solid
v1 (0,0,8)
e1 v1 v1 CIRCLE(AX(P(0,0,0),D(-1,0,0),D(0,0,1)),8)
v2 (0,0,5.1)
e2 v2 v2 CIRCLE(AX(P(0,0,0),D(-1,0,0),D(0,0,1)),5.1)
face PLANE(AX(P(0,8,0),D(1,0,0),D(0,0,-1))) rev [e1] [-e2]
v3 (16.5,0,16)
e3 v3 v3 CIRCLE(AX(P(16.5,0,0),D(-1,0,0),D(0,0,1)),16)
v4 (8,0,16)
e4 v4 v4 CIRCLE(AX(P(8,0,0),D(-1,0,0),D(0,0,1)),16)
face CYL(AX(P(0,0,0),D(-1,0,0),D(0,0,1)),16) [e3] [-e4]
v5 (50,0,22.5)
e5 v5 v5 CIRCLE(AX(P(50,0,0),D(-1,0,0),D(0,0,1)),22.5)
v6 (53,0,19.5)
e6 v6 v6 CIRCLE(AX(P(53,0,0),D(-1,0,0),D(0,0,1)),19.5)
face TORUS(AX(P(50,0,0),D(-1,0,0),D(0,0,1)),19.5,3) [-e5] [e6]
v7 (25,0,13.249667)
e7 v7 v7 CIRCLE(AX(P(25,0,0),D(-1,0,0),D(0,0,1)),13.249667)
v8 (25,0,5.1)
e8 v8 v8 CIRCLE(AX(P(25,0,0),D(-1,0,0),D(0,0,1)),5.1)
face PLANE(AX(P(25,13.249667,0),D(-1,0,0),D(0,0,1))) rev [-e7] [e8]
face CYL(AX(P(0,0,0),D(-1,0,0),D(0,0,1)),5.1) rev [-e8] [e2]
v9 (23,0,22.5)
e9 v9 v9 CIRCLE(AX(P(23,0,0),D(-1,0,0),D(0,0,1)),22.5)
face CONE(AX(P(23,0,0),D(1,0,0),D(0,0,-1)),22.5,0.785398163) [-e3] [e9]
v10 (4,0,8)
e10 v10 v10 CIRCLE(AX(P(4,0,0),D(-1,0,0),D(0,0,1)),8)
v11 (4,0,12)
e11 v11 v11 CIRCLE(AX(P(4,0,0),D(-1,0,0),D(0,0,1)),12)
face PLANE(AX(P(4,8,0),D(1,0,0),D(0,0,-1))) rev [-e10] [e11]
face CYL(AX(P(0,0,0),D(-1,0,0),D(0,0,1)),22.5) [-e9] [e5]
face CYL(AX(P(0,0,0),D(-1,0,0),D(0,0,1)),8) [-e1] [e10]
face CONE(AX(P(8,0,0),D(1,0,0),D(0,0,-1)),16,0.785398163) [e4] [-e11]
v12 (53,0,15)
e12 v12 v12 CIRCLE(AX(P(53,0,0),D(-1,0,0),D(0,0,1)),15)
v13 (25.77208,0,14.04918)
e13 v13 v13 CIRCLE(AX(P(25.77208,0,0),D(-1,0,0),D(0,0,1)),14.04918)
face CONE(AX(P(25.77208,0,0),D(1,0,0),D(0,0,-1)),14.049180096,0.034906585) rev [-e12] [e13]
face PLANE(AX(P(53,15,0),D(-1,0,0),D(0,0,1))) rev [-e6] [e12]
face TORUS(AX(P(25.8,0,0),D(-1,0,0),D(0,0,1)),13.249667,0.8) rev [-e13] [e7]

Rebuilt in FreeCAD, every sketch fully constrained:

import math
import FreeCAD as App
import Part
import Sketcher

V = App.Vector
Q = App.Units.Quantity

doc = App.newDocument("Part")
body = doc.addObject("PartDesign::Body", "Body")

# Sketch on XY plane
sketch1 = doc.addObject("Sketcher::SketchObject", "Sketch")
body.addObject(sketch1)
sketch1.AttachmentSupport = (doc.XY_Plane, [""])
sketch1.MapMode = "FlatFace"
sketch1.addGeometry([
    Part.LineSegment(V(4, 8, 0), V(0, 8, 0)),  # 0
    Part.LineSegment(V(0, 8, 0), V(0, 5.1, 0)),  # 1
    Part.LineSegment(V(0, 5.1, 0), V(25, 5.1, 0)),  # 2
    Part.LineSegment(V(25, 5.1, 0), V(25, 13.2, 0)),  # 3
    Part.ArcOfCircle(Part.Circle(V(25.8, 13.2, 0), V(0, 0, 1), 0.8), math.radians(92), math.radians(180)),  # 4
    Part.LineSegment(V(25.8, 14, 0), V(53, 15, 0)),  # 5
    Part.LineSegment(V(53, 15, 0), V(53, 19.5, 0)),  # 6
    Part.ArcOfCircle(Part.Circle(V(50, 19.5, 0), V(0, 0, 1), 3), math.radians(0), math.radians(90)),  # 7
    Part.LineSegment(V(50, 22.5, 0), V(23, 22.5, 0)),  # 8
    Part.LineSegment(V(23, 22.5, 0), V(16.5, 16, 0)),  # 9
    Part.LineSegment(V(16.5, 16, 0), V(8, 16, 0)),  # 10
    Part.LineSegment(V(8, 16, 0), V(4, 12, 0)),  # 11
    Part.LineSegment(V(4, 12, 0), V(4, 8, 0)),  # 12
], False)
sketch1.addConstraint([
    Sketcher.Constraint("Coincident", 0, 2, 1, 1),
    Sketcher.Constraint("Coincident", 1, 2, 2, 1),
    Sketcher.Constraint("Coincident", 2, 2, 3, 1),
    Sketcher.Constraint("Tangent", 3, 2, 4, 2),
    Sketcher.Constraint("Tangent", 4, 1, 5, 1),
    Sketcher.Constraint("Coincident", 5, 2, 6, 1),
    Sketcher.Constraint("Tangent", 6, 2, 7, 1),
    Sketcher.Constraint("Tangent", 7, 2, 8, 1),
    Sketcher.Constraint("Coincident", 8, 2, 9, 1),
    Sketcher.Constraint("Coincident", 9, 2, 10, 1),
    Sketcher.Constraint("Coincident", 10, 2, 11, 1),
    Sketcher.Constraint("Coincident", 11, 2, 12, 1),
    Sketcher.Constraint("Coincident", 12, 2, 0, 1),
    Sketcher.Constraint("Horizontal", 0),
    Sketcher.Constraint("Vertical", 1),
    Sketcher.Constraint("Horizontal", 2),
    Sketcher.Constraint("Vertical", 3),
    Sketcher.Constraint("Vertical", 6),
    Sketcher.Constraint("Horizontal", 8),
    Sketcher.Constraint("Horizontal", 10),
    Sketcher.Constraint("Vertical", 12),
    Sketcher.Constraint("PointOnObject", 0, 2, -2),
    Sketcher.Constraint("Parallel", 9, 11),
    Sketcher.Constraint("Equal", 0, 12),
    Sketcher.Constraint("Radius", 7, Q("3 mm")),
    Sketcher.Constraint("Radius", 4, Q("0.8 mm")),
    Sketcher.Constraint("DistanceX", 0, 2, 0, 1, Q("4 mm")),
    Sketcher.Constraint("DistanceX", 2, 1, 2, 2, Q("25 mm")),
    Sketcher.Constraint("DistanceX", 8, 2, 8, 1, Q("27 mm")),
    Sketcher.Constraint("Angle", 5, Q("2 deg")),
    Sketcher.Constraint("Angle", 9, Q("-135 deg")),
    Sketcher.Constraint("DistanceX", 10, 2, 10, 1, Q("8.5 mm")),
    Sketcher.Constraint("DistanceY", 1, 2, 1, 1, Q("2.9 mm")),
    Sketcher.Constraint("DistanceY", 6, 1, 6, 2, Q("4.5 mm")),
    Sketcher.Constraint("DistanceX", -1, 1, 7, 3, Q("50 mm")),
    Sketcher.Constraint("DistanceY", -1, 1, 0, 2, Q("8 mm")),
    Sketcher.Constraint("DistanceY", -1, 1, 9, 2, Q("16 mm")),
])
revolution = doc.addObject("PartDesign::Revolution", "Revolution")
body.addObject(revolution)
revolution.Profile = sketch1
revolution.ReferenceAxis = (sketch1, ["H_Axis"])
revolution.Angle = 360

doc.recompute()
